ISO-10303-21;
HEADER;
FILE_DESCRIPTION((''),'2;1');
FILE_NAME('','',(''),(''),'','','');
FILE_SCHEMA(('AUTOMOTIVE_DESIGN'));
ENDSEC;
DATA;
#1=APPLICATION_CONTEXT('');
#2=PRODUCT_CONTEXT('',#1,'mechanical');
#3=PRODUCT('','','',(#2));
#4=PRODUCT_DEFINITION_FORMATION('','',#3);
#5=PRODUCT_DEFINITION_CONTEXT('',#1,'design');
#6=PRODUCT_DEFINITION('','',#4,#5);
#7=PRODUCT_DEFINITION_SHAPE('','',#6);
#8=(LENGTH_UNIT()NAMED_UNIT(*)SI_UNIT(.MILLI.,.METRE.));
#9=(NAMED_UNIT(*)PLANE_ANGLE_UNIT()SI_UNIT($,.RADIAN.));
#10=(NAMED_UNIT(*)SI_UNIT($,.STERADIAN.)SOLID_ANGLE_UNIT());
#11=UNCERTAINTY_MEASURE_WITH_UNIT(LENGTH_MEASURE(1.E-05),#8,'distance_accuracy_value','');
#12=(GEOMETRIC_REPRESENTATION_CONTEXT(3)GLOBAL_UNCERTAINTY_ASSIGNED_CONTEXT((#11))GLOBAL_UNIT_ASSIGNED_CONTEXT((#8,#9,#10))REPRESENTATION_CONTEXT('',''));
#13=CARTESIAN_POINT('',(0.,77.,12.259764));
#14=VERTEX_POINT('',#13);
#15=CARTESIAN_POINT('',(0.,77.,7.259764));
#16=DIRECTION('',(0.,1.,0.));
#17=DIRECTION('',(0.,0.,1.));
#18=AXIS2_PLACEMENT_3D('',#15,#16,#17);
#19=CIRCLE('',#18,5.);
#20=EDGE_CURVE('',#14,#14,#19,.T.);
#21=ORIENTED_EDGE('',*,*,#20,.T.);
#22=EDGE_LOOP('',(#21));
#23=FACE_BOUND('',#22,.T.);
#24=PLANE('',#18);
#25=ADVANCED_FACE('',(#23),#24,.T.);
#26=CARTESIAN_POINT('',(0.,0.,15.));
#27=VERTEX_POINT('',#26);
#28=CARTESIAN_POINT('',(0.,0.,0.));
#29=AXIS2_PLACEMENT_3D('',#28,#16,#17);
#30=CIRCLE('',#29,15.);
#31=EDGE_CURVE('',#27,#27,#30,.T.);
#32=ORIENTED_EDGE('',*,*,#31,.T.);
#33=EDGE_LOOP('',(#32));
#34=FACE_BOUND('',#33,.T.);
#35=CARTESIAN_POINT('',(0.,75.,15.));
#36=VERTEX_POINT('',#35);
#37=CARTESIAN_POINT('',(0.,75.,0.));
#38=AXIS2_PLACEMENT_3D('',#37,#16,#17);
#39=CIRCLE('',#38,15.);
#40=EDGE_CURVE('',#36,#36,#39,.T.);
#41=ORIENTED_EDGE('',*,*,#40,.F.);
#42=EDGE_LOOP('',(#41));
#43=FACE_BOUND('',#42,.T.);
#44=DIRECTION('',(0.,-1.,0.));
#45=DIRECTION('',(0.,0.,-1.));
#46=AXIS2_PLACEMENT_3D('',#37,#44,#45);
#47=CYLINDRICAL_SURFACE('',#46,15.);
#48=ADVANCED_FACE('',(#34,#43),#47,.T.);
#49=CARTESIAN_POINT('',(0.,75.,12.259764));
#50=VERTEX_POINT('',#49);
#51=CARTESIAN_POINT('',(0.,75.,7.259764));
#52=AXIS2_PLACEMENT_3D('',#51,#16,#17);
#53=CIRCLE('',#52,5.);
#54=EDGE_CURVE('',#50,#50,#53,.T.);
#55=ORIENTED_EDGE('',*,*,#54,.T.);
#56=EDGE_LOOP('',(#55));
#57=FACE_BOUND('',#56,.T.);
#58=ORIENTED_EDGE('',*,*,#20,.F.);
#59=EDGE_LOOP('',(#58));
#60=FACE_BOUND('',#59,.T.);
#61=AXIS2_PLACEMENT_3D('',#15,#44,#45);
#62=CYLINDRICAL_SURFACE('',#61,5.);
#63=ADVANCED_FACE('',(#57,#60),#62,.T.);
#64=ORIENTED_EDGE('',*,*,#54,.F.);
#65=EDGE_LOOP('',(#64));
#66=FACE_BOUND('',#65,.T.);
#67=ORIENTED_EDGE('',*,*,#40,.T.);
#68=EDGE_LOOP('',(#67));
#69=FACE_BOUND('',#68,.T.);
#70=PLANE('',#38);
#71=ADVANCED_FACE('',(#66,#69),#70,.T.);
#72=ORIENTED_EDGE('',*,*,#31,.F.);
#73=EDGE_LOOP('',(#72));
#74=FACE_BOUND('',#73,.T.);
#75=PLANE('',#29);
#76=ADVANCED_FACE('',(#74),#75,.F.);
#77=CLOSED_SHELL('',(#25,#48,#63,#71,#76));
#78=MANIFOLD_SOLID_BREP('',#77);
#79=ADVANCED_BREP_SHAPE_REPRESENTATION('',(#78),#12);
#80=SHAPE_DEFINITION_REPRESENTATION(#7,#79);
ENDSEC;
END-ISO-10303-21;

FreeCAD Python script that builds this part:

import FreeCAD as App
import Part
import Sketcher

doc = App.newDocument("Part")
body = doc.addObject("PartDesign::Body", "Body")

sketch1 = body.newObject("Sketcher::SketchObject", "Sketch")
sketch1.AttachmentSupport = (doc.getObject("XZ_Plane"), [""])
sketch1.MapMode = "FlatFace"
sketch1.addGeometry(Part.Circle(App.Vector(0, 0, 0), App.Vector(0, 0, 1), 15), False)
sketch1.addConstraint([
    Sketcher.Constraint("Coincident", 0, 3, -1, 1),
    Sketcher.Constraint("Diameter", 0, 30.0),
])
pad1 = body.newObject("PartDesign::Pad", "Pad")
pad1.Profile = sketch1
pad1.Length = 75
pad1.Reversed = True

sketch2 = body.newObject("Sketcher::SketchObject", "Sketch001")
sketch2.AttachmentSupport = (doc.getObject("XZ_Plane"), [""])
sketch2.MapMode = "FlatFace"
sketch2.AttachmentOffset = App.Placement(App.Vector(0, 0, -75), App.Rotation())
sketch2.addGeometry(Part.Circle(App.Vector(0, 7, 0), App.Vector(0, 0, 1), 5), False)
sketch2.addConstraint([
    Sketcher.Constraint("PointOnObject", 0, 3, -2),
    Sketcher.Constraint("Diameter", 0, 10.0),
    Sketcher.Constraint("DistanceY", -1, 1, 0, 3, 7.259764),
])
pad2 = body.newObject("PartDesign::Pad", "Pad001")
pad2.Profile = sketch2
pad2.Length = 2
pad2.Reversed = True

doc.recompute()
